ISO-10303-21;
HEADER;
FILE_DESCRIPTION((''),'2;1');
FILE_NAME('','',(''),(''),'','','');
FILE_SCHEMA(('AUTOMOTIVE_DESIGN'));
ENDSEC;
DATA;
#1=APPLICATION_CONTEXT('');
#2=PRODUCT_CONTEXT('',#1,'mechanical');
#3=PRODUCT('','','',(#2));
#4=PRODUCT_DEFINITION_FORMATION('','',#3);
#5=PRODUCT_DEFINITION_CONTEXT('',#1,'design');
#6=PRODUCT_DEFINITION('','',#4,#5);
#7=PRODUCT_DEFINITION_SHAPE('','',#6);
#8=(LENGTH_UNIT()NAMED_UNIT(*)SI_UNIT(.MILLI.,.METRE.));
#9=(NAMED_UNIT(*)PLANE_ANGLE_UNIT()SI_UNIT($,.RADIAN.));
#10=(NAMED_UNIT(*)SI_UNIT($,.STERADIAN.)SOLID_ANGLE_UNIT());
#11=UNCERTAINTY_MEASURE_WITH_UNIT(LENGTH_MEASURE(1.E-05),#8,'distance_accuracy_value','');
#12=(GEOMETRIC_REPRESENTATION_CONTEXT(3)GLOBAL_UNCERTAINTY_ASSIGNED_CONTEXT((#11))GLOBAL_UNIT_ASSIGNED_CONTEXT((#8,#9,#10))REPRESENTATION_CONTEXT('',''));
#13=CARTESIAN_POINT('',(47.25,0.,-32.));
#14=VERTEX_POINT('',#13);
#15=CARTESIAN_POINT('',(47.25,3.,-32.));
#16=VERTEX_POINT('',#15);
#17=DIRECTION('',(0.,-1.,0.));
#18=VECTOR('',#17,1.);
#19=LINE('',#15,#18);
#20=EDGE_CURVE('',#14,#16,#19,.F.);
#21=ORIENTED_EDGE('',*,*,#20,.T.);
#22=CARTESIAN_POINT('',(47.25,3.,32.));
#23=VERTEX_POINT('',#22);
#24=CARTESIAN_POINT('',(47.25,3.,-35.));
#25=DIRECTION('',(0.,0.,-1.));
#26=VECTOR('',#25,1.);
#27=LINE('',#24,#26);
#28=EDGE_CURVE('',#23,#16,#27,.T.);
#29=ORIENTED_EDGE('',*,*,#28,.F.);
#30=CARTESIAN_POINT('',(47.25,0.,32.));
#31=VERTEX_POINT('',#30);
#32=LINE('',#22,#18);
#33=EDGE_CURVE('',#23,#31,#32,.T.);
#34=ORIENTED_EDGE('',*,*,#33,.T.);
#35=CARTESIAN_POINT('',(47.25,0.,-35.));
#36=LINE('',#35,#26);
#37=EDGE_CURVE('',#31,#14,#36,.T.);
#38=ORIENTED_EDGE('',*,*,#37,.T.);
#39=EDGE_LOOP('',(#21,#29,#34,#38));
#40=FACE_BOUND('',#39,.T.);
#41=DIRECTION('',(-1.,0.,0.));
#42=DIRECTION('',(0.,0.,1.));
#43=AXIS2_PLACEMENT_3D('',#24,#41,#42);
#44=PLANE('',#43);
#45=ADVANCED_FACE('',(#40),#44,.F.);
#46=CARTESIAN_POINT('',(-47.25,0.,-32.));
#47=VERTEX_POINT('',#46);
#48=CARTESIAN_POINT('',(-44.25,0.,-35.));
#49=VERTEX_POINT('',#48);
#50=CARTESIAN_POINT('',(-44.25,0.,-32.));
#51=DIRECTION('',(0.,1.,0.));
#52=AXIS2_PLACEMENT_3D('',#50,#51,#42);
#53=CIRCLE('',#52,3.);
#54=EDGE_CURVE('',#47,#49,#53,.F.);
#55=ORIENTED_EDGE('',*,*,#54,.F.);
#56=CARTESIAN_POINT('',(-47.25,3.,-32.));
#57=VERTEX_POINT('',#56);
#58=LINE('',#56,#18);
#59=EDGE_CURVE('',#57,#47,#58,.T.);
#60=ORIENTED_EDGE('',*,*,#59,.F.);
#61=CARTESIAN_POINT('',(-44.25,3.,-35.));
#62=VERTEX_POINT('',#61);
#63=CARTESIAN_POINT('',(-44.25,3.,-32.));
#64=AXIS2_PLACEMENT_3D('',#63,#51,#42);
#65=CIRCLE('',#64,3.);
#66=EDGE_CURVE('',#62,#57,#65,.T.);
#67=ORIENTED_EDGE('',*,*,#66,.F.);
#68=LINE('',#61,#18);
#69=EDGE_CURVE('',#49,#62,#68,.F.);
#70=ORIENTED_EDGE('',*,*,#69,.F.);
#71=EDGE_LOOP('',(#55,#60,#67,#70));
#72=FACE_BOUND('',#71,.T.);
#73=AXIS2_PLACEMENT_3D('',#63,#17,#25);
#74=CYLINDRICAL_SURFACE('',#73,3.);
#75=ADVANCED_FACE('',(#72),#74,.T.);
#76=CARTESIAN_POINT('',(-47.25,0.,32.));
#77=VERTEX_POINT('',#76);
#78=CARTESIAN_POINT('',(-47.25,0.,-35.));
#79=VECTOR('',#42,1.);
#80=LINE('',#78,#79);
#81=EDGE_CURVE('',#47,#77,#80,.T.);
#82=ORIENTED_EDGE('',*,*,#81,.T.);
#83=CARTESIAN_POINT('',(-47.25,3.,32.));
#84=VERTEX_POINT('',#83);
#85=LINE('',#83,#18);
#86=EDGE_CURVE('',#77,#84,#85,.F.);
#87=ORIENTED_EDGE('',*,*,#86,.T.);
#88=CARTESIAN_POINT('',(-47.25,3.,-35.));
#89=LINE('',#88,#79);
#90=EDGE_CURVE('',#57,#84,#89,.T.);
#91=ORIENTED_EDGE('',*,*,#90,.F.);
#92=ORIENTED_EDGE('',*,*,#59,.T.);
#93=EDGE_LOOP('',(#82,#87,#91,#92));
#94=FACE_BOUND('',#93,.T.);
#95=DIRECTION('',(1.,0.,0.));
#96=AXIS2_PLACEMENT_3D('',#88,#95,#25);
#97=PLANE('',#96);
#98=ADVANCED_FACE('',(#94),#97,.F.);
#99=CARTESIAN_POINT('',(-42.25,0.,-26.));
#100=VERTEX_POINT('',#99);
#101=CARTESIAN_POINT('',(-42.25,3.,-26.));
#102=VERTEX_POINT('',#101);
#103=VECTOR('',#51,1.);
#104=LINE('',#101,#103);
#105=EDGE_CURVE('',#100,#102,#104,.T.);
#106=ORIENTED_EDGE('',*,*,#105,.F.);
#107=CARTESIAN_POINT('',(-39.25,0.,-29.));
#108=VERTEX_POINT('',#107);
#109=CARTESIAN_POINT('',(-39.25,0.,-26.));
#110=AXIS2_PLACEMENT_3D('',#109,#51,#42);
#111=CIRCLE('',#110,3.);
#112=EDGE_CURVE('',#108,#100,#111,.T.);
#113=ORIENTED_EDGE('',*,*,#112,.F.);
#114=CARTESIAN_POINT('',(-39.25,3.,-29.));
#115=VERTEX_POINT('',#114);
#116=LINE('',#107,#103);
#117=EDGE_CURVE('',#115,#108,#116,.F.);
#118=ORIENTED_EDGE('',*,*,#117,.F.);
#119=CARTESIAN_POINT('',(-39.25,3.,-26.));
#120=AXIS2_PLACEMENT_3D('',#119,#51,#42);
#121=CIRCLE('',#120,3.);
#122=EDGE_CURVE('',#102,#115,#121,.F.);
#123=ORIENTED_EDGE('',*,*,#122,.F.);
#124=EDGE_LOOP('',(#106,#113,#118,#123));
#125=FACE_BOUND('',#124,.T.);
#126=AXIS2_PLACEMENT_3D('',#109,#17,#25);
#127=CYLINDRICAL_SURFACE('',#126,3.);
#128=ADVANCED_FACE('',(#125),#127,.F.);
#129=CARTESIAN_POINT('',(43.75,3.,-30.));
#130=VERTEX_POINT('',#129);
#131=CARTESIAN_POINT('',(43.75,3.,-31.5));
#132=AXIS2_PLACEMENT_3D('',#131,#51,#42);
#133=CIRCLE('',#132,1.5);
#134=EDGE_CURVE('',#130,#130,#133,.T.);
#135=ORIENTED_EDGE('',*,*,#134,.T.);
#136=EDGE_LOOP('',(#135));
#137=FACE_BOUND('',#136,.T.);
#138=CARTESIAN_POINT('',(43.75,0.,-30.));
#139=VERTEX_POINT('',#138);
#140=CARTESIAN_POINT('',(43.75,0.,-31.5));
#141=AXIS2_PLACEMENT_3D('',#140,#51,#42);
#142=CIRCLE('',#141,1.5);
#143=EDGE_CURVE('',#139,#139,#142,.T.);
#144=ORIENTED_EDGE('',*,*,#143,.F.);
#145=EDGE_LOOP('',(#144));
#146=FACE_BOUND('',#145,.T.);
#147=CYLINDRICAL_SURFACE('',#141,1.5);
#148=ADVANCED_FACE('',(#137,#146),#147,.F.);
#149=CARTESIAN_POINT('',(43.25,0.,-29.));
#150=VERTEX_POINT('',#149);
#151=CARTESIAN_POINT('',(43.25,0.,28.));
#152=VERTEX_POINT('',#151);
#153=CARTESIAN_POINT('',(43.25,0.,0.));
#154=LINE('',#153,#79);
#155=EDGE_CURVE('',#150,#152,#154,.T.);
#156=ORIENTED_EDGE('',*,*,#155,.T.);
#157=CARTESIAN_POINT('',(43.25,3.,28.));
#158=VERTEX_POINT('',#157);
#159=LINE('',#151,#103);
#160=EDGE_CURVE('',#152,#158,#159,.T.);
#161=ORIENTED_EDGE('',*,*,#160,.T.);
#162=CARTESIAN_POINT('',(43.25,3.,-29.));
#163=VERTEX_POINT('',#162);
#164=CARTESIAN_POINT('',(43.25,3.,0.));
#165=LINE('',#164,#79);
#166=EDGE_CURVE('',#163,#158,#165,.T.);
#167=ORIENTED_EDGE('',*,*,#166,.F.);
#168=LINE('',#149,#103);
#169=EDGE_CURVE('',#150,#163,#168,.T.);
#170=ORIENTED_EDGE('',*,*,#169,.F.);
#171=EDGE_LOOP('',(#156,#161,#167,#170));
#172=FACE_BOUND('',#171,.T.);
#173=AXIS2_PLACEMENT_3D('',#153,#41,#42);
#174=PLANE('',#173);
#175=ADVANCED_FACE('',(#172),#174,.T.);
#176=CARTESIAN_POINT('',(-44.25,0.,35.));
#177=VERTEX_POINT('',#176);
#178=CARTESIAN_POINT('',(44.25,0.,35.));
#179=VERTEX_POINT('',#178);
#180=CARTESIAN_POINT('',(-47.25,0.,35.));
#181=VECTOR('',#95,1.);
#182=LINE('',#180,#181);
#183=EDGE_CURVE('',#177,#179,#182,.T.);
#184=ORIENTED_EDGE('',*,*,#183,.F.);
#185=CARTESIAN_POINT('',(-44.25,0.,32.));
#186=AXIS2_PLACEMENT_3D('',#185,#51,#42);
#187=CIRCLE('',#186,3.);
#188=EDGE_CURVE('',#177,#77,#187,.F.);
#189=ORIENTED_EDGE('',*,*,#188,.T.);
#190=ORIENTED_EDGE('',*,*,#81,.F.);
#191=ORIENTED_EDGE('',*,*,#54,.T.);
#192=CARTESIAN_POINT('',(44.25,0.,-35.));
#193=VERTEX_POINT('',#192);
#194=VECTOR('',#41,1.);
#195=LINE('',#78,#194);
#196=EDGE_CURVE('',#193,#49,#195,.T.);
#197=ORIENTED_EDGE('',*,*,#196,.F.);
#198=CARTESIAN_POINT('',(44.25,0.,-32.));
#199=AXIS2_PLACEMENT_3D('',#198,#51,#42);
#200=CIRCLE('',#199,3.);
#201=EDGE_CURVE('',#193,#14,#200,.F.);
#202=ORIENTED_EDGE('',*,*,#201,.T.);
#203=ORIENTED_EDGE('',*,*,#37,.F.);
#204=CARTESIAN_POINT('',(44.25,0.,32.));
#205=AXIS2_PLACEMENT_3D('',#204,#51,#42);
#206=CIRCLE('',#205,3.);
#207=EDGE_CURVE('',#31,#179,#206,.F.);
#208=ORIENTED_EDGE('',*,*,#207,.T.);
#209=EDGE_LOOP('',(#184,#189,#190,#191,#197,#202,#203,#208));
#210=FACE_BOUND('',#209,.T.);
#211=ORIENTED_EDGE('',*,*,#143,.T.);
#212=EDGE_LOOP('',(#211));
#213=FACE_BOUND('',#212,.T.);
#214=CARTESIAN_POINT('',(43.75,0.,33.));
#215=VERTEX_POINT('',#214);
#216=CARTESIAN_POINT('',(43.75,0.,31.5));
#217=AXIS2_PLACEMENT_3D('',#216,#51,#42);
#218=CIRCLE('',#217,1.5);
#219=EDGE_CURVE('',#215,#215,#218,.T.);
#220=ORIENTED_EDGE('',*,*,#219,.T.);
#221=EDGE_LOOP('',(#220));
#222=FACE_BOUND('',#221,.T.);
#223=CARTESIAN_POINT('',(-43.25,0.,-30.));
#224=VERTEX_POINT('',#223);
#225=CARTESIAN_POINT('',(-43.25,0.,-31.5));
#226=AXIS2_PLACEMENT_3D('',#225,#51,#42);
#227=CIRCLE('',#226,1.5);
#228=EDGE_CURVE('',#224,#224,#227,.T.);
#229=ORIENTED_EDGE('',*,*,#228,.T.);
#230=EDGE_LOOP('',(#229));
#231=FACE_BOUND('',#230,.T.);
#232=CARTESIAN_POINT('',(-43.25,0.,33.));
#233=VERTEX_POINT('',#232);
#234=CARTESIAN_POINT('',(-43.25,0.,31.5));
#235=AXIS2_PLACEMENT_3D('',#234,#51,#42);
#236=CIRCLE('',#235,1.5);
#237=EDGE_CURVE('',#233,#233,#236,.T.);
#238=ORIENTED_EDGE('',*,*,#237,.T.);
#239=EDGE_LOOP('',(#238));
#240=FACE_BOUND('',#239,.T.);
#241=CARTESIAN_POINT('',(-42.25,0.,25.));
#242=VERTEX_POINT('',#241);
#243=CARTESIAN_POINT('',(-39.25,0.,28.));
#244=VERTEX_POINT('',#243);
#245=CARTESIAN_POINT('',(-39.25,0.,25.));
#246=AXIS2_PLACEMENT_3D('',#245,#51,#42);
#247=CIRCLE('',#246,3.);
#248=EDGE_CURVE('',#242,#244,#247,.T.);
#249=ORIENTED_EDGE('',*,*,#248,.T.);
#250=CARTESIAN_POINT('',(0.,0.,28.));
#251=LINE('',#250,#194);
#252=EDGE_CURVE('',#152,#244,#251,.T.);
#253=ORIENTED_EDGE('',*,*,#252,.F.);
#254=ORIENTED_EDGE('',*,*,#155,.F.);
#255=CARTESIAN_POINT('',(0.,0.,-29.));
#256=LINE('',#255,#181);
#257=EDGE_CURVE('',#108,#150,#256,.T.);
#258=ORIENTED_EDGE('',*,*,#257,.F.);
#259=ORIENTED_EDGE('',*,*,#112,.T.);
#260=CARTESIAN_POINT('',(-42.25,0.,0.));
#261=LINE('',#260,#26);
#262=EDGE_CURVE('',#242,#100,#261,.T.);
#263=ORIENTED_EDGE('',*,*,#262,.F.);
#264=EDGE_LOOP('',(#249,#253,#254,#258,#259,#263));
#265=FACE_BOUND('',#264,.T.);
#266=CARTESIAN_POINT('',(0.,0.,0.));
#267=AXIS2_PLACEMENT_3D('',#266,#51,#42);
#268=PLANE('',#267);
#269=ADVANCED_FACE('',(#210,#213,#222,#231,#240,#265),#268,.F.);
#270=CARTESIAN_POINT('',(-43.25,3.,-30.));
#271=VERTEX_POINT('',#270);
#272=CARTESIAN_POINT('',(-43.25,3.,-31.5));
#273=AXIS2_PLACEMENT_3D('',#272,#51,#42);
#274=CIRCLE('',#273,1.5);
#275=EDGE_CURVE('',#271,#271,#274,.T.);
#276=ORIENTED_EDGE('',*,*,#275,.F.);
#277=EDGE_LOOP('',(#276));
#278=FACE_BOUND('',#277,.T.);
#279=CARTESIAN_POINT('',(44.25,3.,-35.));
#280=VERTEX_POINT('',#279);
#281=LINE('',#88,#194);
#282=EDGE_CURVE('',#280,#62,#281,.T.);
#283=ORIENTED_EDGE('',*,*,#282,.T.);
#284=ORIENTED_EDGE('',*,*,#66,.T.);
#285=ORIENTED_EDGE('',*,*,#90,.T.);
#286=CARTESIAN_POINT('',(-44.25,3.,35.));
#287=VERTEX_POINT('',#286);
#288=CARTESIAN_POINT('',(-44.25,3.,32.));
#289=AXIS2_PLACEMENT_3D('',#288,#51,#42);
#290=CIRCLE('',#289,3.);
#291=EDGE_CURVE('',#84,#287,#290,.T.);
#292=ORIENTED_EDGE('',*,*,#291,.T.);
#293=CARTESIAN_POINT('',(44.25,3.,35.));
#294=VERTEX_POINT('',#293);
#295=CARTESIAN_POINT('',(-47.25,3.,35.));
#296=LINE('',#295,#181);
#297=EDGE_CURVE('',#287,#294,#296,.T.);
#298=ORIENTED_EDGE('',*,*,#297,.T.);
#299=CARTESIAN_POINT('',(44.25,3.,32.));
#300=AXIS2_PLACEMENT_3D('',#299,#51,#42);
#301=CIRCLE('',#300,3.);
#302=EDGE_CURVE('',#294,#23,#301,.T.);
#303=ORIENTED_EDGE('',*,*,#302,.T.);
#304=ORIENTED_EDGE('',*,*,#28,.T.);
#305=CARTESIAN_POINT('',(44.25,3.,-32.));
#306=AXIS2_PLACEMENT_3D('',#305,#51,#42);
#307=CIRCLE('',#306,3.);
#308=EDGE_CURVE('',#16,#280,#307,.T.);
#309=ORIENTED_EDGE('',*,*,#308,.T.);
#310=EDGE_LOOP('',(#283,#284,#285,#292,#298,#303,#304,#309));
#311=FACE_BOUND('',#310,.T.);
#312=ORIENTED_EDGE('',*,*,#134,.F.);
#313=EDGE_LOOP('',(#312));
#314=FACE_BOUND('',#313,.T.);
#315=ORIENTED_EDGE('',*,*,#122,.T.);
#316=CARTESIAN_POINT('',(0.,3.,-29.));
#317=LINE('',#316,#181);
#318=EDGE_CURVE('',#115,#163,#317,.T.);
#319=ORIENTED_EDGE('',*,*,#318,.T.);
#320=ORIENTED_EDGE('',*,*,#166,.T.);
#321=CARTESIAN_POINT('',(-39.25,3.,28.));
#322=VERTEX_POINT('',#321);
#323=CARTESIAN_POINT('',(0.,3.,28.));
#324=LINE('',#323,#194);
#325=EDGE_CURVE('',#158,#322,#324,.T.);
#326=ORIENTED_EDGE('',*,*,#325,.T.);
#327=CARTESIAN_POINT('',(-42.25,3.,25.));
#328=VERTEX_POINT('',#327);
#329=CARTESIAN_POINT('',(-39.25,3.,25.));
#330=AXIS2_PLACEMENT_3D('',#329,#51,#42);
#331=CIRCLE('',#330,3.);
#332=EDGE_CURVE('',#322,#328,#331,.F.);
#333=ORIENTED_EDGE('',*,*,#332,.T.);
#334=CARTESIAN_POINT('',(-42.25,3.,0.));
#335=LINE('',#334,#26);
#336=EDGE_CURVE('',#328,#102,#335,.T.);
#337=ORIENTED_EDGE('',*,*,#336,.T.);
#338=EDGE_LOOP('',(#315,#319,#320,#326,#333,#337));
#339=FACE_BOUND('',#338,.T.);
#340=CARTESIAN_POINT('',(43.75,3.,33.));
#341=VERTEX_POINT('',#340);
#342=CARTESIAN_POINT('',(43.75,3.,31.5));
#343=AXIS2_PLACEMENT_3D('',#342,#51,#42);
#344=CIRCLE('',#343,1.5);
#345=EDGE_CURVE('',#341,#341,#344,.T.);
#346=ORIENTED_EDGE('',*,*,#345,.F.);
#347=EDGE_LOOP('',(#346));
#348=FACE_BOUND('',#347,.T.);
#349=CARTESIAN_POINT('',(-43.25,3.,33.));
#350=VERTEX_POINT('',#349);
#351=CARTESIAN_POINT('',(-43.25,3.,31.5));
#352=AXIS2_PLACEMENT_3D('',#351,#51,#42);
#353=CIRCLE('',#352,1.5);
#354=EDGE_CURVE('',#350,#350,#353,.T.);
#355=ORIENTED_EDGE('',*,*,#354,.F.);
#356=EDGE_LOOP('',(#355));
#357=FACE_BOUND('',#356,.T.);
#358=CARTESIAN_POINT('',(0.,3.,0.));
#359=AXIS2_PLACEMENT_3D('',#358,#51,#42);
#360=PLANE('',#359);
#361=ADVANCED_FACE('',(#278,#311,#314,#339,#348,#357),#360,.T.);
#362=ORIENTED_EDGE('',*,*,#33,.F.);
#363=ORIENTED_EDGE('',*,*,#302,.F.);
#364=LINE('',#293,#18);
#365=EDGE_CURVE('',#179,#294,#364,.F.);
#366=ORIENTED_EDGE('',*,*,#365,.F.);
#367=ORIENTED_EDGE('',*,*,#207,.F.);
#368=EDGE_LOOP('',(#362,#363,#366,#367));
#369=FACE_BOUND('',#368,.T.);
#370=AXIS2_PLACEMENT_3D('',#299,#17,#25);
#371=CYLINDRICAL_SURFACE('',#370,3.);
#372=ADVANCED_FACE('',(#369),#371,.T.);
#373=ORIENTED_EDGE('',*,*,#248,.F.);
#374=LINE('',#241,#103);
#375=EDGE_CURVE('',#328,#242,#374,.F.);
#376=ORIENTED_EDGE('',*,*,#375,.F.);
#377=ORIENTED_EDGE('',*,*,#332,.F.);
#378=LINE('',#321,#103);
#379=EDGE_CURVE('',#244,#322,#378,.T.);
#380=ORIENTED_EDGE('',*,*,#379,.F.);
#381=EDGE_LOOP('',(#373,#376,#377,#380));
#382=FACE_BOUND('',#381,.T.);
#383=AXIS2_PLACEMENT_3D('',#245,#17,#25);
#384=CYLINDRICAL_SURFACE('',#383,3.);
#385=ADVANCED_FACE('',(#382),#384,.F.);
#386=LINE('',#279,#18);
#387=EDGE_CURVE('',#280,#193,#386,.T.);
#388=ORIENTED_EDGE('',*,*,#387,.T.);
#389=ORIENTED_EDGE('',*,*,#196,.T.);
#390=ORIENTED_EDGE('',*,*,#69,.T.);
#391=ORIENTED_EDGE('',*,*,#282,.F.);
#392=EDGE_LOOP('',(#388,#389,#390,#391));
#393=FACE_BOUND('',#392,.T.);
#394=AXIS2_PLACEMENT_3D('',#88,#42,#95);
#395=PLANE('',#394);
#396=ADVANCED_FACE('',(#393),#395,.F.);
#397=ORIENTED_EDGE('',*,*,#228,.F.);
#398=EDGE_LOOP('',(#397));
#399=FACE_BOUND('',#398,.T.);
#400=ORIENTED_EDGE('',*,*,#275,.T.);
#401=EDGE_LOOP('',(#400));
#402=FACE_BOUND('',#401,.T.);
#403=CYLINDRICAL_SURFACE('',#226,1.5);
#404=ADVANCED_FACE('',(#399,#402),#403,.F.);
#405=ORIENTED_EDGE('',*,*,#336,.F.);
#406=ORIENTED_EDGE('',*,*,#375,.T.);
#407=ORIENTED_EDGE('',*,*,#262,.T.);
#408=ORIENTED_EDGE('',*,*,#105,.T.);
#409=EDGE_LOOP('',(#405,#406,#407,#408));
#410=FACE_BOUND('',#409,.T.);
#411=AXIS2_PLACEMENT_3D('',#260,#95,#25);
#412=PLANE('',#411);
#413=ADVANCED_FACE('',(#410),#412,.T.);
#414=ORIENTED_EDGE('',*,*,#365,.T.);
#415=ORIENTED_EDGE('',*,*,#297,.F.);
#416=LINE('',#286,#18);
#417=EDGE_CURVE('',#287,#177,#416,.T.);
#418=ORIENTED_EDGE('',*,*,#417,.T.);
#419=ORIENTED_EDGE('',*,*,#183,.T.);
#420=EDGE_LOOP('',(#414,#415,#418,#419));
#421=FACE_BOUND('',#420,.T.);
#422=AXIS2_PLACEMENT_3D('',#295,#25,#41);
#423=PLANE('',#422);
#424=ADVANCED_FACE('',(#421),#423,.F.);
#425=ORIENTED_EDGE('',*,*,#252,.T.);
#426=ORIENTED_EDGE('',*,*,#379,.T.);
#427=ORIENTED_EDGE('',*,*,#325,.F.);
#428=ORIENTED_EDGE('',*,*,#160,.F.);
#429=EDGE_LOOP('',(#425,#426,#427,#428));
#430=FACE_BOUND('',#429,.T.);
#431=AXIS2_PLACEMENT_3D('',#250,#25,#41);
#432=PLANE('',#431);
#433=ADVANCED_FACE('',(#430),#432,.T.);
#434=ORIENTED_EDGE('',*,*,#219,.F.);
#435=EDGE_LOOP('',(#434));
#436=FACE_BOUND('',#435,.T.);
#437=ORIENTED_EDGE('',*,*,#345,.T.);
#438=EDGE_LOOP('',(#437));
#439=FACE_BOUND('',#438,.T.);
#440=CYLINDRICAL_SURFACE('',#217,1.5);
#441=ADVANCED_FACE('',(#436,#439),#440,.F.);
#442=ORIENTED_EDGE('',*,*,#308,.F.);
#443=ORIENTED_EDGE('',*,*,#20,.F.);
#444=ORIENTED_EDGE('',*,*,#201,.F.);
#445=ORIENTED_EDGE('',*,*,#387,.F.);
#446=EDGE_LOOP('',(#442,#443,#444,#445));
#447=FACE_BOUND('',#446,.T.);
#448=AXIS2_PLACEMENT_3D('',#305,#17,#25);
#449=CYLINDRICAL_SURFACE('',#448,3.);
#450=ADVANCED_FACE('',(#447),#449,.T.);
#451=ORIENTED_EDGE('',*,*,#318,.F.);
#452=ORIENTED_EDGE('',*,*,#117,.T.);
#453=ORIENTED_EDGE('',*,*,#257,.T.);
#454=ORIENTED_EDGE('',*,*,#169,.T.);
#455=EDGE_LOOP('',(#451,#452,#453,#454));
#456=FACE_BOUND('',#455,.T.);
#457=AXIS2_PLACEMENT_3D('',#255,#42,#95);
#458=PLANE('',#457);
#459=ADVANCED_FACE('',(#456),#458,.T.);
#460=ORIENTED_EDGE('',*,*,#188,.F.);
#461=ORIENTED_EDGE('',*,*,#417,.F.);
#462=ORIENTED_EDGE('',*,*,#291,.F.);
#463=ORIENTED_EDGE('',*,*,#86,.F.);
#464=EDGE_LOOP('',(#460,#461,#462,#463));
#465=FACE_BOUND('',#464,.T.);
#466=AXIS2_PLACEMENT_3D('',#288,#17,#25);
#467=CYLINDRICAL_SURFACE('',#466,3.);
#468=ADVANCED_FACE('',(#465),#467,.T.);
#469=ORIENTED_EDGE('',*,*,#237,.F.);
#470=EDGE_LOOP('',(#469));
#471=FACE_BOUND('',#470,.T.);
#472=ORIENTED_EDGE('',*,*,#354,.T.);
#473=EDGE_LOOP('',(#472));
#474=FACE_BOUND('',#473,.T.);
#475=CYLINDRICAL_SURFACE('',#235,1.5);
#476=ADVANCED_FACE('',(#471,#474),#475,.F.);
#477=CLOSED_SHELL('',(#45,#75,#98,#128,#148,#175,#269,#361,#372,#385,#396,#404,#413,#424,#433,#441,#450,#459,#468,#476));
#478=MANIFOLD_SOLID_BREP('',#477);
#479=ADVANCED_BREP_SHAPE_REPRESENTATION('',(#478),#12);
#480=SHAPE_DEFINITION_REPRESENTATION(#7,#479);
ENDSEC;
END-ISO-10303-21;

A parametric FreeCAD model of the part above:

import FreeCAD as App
import Part
import Sketcher
Q = App.Units.Quantity


def edges_at(feature, points):
    """Names of the edges that pass closest to the given points."""
    edges = feature.Shape.Edges
    near = lambda p: min(range(len(edges)), key=lambda i: edges[i].distToShape(Part.Vertex(*p))[0])
    return sorted({f"Edge{near(p) + 1}" for p in points})

doc = App.newDocument("Part")
body = doc.addObject("PartDesign::Body", "Body")

sketch1 = body.newObject("Sketcher::SketchObject", "Sketch")
sketch1.AttachmentSupport = (doc.getObject("XZ_Plane"), [""])
sketch1.MapMode = "FlatFace"
sketch1.addGeometry([
    Part.LineSegment(App.Vector(-47.25, -35, 0), App.Vector(-47.25, 35, 0)),
    Part.LineSegment(App.Vector(-47.25, 35, 0), App.Vector(47.25, 35, 0)),
    Part.LineSegment(App.Vector(47.25, 35, 0), App.Vector(47.25, -35, 0)),
    Part.LineSegment(App.Vector(47.25, -35, 0), App.Vector(-47.25, -35, 0)),
], False)
sketch1.addConstraint([
    Sketcher.Constraint("Coincident", 0, 2, 1, 1),
    Sketcher.Constraint("Coincident", 1, 2, 2, 1),
    Sketcher.Constraint("Coincident", 2, 2, 3, 1),
    Sketcher.Constraint("Coincident", 3, 2, 0, 1),
    Sketcher.Constraint("Vertical", 0),
    Sketcher.Constraint("Horizontal", 1),
    Sketcher.Constraint("Vertical", 2),
    Sketcher.Constraint("Horizontal", 3),
    Sketcher.Constraint("Symmetric", 0, 2, 2, 2, -1, 1),
    Sketcher.Constraint("DistanceY", 0, 1, 0, 2, Q("70 mm")),
    Sketcher.Constraint("DistanceX", 1, 1, 1, 2, Q("94.5 mm")),
])
pad1 = body.newObject("PartDesign::Pad", "Pad")
pad1.Profile = sketch1
pad1.Length = 3
pad1.Reversed = True

sketch2 = body.newObject("Sketcher::SketchObject", "Sketch001")
sketch2.AttachmentSupport = (doc.getObject("XZ_Plane"), [""])
sketch2.MapMode = "FlatFace"
sketch2.AttachmentOffset = App.Placement(App.Vector(0, 0, -3), App.Rotation())
sketch2.addGeometry([
    Part.Circle(App.Vector(43.75, -31.5, 0), App.Vector(0, 0, 1), 1.5),
    Part.Circle(App.Vector(-43.25, -31.5, 0), App.Vector(0, 0, 1), 1.5),
    Part.Circle(App.Vector(-43.25, 31.5, 0), App.Vector(0, 0, 1), 1.5),
    Part.Circle(App.Vector(43.75, 31.5, 0), App.Vector(0, 0, 1), 1.5),
], False)
sketch2.addConstraint([
    Sketcher.Constraint("Equal", 0, 1),
    Sketcher.Constraint("Equal", 1, 2),
    Sketcher.Constraint("Equal", 2, 3),
    Sketcher.Constraint("Symmetric", 1, 3, 2, 3, -1),
    Sketcher.Constraint("Symmetric", 0, 3, 3, 3, -1),
    Sketcher.Constraint("Horizontal", 0, 3, 1, 3),
    Sketcher.Constraint("Diameter", 0, Q("3 mm")),
    Sketcher.Constraint("DistanceX", 1, 3, 0, 3, Q("87 mm")),
    Sketcher.Constraint("DistanceY", 1, 3, 2, 3, Q("63 mm")),
    Sketcher.Constraint("DistanceX", -1, 1, 0, 3, Q("43.75 mm")),
])
pocket1 = body.newObject("PartDesign::Pocket", "Pocket")
pocket1.Profile = sketch2
pocket1.Type = "ThroughAll"
pocket1.Reversed = True
doc.recompute()

fillet = body.newObject("PartDesign::Fillet", "Fillet")
fillet.Base = (pocket1, edges_at(pocket1, [
    (47.25, 1.5, 35),
    (-47.25, 1.5, 35),
    (-47.25, 1.5, -35),
    (47.25, 1.5, -35),
]))
fillet.Radius = 3

sketch3 = body.newObject("Sketcher::SketchObject", "Sketch002")
sketch3.AttachmentSupport = (doc.getObject("XZ_Plane"), [""])
sketch3.MapMode = "FlatFace"
sketch3.AttachmentOffset = App.Placement(App.Vector(0, 0, -3), App.Rotation())
sketch3.addGeometry([
    Part.LineSegment(App.Vector(43.25, -29, 0), App.Vector(-42.25, -29, 0)),
    Part.LineSegment(App.Vector(-42.25, -29, 0), App.Vector(-42.25, 28, 0)),
    Part.LineSegment(App.Vector(-42.25, 28, 0), App.Vector(43.25, 28, 0)),
    Part.LineSegment(App.Vector(43.25, 28, 0), App.Vector(43.25, -29, 0)),
], False)
sketch3.addConstraint([
    Sketcher.Constraint("Coincident", 0, 2, 1, 1),
    Sketcher.Constraint("Coincident", 1, 2, 2, 1),
    Sketcher.Constraint("Coincident", 2, 2, 3, 1),
    Sketcher.Constraint("Coincident", 3, 2, 0, 1),
    Sketcher.Constraint("Horizontal", 0),
    Sketcher.Constraint("Vertical", 1),
    Sketcher.Constraint("Horizontal", 2),
    Sketcher.Constraint("Vertical", 3),
    Sketcher.Constraint("DistanceY", 1, 1, 1, 2, Q("57 mm")),
    Sketcher.Constraint("DistanceX", 0, 2, 0, 1, Q("85.5 mm")),
    Sketcher.Constraint("DistanceY", 0, 2, -1, 1, Q("29 mm")),
    Sketcher.Constraint("DistanceX", 0, 2, -1, 1, Q("42.25 mm")),
])
pocket2 = body.newObject("PartDesign::Pocket", "Pocket001")
pocket2.Profile = sketch3
pocket2.Type = "ThroughAll"
pocket2.Reversed = True
doc.recompute()

fillet2 = body.newObject("PartDesign::Fillet", "Fillet001")
fillet2.Base = (pocket2, edges_at(pocket2, [(-42.25, 1.5, 28), (-42.25, 1.5, -29)]))
fillet2.Radius = 3

doc.recompute()
